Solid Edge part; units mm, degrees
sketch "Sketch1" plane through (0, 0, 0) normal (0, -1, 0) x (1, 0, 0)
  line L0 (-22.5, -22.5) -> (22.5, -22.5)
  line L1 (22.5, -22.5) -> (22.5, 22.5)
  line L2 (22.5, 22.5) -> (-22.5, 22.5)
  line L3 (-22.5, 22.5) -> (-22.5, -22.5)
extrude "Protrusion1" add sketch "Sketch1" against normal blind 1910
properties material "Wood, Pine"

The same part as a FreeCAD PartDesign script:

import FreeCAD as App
import Part
import Sketcher

V = App.Vector
Q = App.Units.Quantity


def add_polygon(sketch, points):
    """Adds a closed chain of lines whose ends are joined by coincident constraints."""
    first, n = sketch.GeometryCount, len(points)
    for a, b in zip(points, points[1:] + points[:1]):
        sketch.addGeometry(Part.LineSegment(App.Vector(*a, 0), App.Vector(*b, 0)), False)
    for i in range(n):
        sketch.addConstraint(Sketcher.Constraint("Coincident", first + i, 2, first + (i + 1) % n, 1))

doc = App.newDocument("Part")
body = doc.addObject("PartDesign::Body", "Body")

sketch1 = body.newObject("Sketcher::SketchObject", "Sketch")
sketch1.AttachmentSupport = (doc.getObject("XZ_Plane"), [""])
sketch1.MapMode = "FlatFace"
add_polygon(sketch1, [(-22.5, 22.5), (-22.5, -22.5), (22.5, -22.5), (22.5, 22.5)])
sketch1.addConstraint([
    Sketcher.Constraint("Vertical", 0),
    Sketcher.Constraint("Horizontal", 1),
    Sketcher.Constraint("Vertical", 2),
    Sketcher.Constraint("Horizontal", 3),
    Sketcher.Constraint("Symmetric", 0, 2, 2, 2, -1, 1),
    Sketcher.Constraint("Equal", 3, 0),
    Sketcher.Constraint("DistanceX", 1, 1, 1, 2, Q("45 mm")),
])
pad1 = body.newObject("PartDesign::Pad", "Pad")
pad1.Profile = sketch1
pad1.Length = 1910
pad1.Reversed = True

doc.recompute()
